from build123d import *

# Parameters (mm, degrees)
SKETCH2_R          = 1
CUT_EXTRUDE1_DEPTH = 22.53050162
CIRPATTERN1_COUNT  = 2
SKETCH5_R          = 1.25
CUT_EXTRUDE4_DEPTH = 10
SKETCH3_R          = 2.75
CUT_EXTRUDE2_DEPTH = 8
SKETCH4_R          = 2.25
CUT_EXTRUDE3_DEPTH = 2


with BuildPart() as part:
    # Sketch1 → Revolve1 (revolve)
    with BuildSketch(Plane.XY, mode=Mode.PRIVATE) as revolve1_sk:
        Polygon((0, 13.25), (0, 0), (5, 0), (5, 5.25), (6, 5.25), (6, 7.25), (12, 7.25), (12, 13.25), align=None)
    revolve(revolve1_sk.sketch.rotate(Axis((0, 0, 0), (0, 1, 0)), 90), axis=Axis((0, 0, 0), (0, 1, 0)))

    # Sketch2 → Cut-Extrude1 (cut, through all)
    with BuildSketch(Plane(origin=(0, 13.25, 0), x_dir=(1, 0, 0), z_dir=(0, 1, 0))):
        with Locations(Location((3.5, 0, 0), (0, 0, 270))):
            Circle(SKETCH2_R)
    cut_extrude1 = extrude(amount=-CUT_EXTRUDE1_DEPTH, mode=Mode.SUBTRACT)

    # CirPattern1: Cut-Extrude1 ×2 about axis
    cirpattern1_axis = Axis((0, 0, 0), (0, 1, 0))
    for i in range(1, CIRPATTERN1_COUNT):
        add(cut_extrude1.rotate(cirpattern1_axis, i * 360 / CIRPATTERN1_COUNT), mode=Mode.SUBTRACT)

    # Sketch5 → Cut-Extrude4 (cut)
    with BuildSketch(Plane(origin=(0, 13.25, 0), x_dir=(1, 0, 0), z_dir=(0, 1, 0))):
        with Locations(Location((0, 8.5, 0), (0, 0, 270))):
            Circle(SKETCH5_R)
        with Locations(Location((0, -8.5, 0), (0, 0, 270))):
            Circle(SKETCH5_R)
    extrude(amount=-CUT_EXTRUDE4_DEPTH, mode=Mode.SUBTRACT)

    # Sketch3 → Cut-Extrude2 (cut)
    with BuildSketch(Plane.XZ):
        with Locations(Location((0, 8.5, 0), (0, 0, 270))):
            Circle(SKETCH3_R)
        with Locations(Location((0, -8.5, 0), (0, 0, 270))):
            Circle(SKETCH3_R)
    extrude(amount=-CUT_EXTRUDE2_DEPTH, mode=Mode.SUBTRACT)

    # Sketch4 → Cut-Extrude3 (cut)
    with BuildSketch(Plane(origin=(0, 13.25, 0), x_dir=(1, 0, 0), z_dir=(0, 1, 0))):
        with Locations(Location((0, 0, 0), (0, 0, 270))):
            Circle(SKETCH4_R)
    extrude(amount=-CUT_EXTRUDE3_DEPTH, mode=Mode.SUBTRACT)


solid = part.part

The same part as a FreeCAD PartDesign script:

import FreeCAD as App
import Part
import Sketcher
Q = App.Units.Quantity

doc = App.newDocument("Part")
params = doc.addObject("Spreadsheet::Sheet", "Params")
for row, (alias, value) in enumerate([
    ("sketch1_width", "5 mm"),
    ("sketch1_width2", "1 mm"),
    ("sketch1_width3", "6 mm"),
    ("sketch1_height", "2 mm"),
    ("sketch1_height2", "13.25 mm"),
    ("revolution_angle", "360 deg"),
    ("sketch2_diameter", "2 mm"),
    ("sketch3_diameter", "2.5 mm"),
    ("pocket2_length", "10 mm"),
    ("sketch4_diameter", "5.5 mm"),
    ("pocket3_length", "8 mm"),
    ("sketch5_diameter", "4.5 mm"),
    ("pocket4_length", "2 mm"),
], start=1):
    params.set(f"A{row}", alias)
    params.set(f"B{row}", "=" + value)
    params.setAlias(f"B{row}", alias)

body = doc.addObject("PartDesign::Body", "Body")

# Sketch on XY plane
sketch1 = body.newObject("Sketcher::SketchObject", "Sketch")
sketch1.AttachmentSupport = (doc.getObject("XY_Plane"), [""])
sketch1.MapMode = "FlatFace"
sketch1.addGeometry([
    Part.LineSegment(App.Vector(0, 13.2, 0), App.Vector(0, 0, 0)),  # 0
    Part.LineSegment(App.Vector(0, 0, 0), App.Vector(5, 0, 0)),  # 1
    Part.LineSegment(App.Vector(5, 0, 0), App.Vector(5, 5.2, 0)),  # 2
    Part.LineSegment(App.Vector(5, 5.2, 0), App.Vector(6, 5.2, 0)),  # 3
    Part.LineSegment(App.Vector(6, 5.2, 0), App.Vector(6, 7.2, 0)),  # 4
    Part.LineSegment(App.Vector(6, 7.2, 0), App.Vector(12, 7.2, 0)),  # 5
    Part.LineSegment(App.Vector(12, 7.2, 0), App.Vector(12, 13.2, 0)),  # 6
    Part.LineSegment(App.Vector(12, 13.2, 0), App.Vector(0, 13.2, 0)),  # 7
], False)
sketch1.addConstraint([
    Sketcher.Constraint("Coincident", 0, 2, 1, 1),
    Sketcher.Constraint("Coincident", 1, 2, 2, 1),
    Sketcher.Constraint("Coincident", 2, 2, 3, 1),
    Sketcher.Constraint("Coincident", 3, 2, 4, 1),
    Sketcher.Constraint("Coincident", 4, 2, 5, 1),
    Sketcher.Constraint("Coincident", 5, 2, 6, 1),
    Sketcher.Constraint("Coincident", 6, 2, 7, 1),
    Sketcher.Constraint("Coincident", 7, 2, 0, 1),
    Sketcher.Constraint("Vertical", 0),
    Sketcher.Constraint("Horizontal", 1),
    Sketcher.Constraint("Vertical", 2),
    Sketcher.Constraint("Horizontal", 3),
    Sketcher.Constraint("Vertical", 4),
    Sketcher.Constraint("Horizontal", 5),
    Sketcher.Constraint("Vertical", 6),
    Sketcher.Constraint("Horizontal", 7),
    Sketcher.Constraint("Coincident", 0, 2, -1, 1),
    Sketcher.Constraint("Equal", 5, 6),
    Sketcher.Constraint("DistanceX", 1, 1, 1, 2, Q("5 mm")),
    Sketcher.Constraint("DistanceX", 3, 1, 3, 2, Q("1 mm")),
    Sketcher.Constraint("DistanceX", 5, 1, 5, 2, Q("6 mm")),
    Sketcher.Constraint("DistanceY", 4, 1, 4, 2, Q("2 mm")),
    Sketcher.Constraint("DistanceY", 0, 2, 0, 1, Q("13.25 mm")),
])
sketch1.setExpression("Constraints[18]", "Params.sketch1_width")
sketch1.setExpression("Constraints[19]", "Params.sketch1_width2")
sketch1.setExpression("Constraints[20]", "Params.sketch1_width3")
sketch1.setExpression("Constraints[21]", "Params.sketch1_height")
sketch1.setExpression("Constraints[22]", "Params.sketch1_height2")
revolution = body.newObject("PartDesign::Revolution", "Revolution")
revolution.Profile = sketch1
revolution.ReferenceAxis = (sketch1, ["V_Axis"])
revolution.setExpression("Angle", "Params.revolution_angle")

# Sketch on XZ plane
sketch2 = body.newObject("Sketcher::SketchObject", "Sketch001")
sketch2.AttachmentSupport = (doc.getObject("XZ_Plane"), [""])
sketch2.MapMode = "FlatFace"
sketch2.AttachmentOffset = App.Placement(App.Vector(0, 0, -13.25), App.Rotation())
sketch2.addGeometry(Part.Circle(App.Vector(3.5, 0, 0), App.Vector(0, 0, 1), 1), False)
sketch2.addConstraint([
    Sketcher.Constraint("PointOnObject", 0, 3, -1),
    Sketcher.Constraint("Diameter", 0, Q("2 mm")),
    Sketcher.Constraint("DistanceX", -1, 1, 0, 3, Q("3.5 mm")),
])
sketch2.setExpression("Constraints[1]", "Params.sketch2_diameter")
pocket1 = body.newObject("PartDesign::Pocket", "Pocket")
pocket1.Profile = sketch2
pocket1.Type = "ThroughAll"
pocket1.Reversed = True
doc.recompute()

polarpattern = body.newObject("PartDesign::PolarPattern", "PolarPattern")
polarpattern.Originals = [pocket1]
polarpattern.Axis = (doc.getObject("Y_Axis"), [""])
polarpattern.Angle = 360
polarpattern.Occurrences = 2
body.Tip = polarpattern

# Sketch on XZ plane
sketch3 = body.newObject("Sketcher::SketchObject", "Sketch002")
sketch3.AttachmentSupport = (doc.getObject("XZ_Plane"), [""])
sketch3.MapMode = "FlatFace"
sketch3.AttachmentOffset = App.Placement(App.Vector(0, 0, -13.25), App.Rotation())
sketch3.addGeometry([
    Part.Circle(App.Vector(0, -8.5, 0), App.Vector(0, 0, 1), 1.2),
    Part.Circle(App.Vector(0, 8.5, 0), App.Vector(0, 0, 1), 1.2),
], False)
sketch3.addConstraint([
    Sketcher.Constraint("Equal", 0, 1),
    Sketcher.Constraint("Symmetric", 0, 3, 1, 3, -1, 1),
    Sketcher.Constraint("PointOnObject", 0, 3, -2),
    Sketcher.Constraint("Diameter", 0, Q("2.5 mm")),
    Sketcher.Constraint("DistanceY", 0, 3, 1, 3, Q("17 mm")),
])
sketch3.setExpression("Constraints[3]", "Params.sketch3_diameter")
pocket2 = body.newObject("PartDesign::Pocket", "Pocket001")
pocket2.Profile = sketch3
pocket2.setExpression("Length", "Params.pocket2_length")
pocket2.Reversed = True

# Sketch on XZ plane
sketch4 = body.newObject("Sketcher::SketchObject", "Sketch003")
sketch4.AttachmentSupport = (doc.getObject("XZ_Plane"), [""])
sketch4.MapMode = "FlatFace"
sketch4.addGeometry([
    Part.Circle(App.Vector(0, 8.5, 0), App.Vector(0, 0, 1), 2.8),
    Part.Circle(App.Vector(0, -8.5, 0), App.Vector(0, 0, 1), 2.8),
], False)
sketch4.addConstraint([
    Sketcher.Constraint("Equal", 0, 1),
    Sketcher.Constraint("Symmetric", 0, 3, 1, 3, -1, 1),
    Sketcher.Constraint("PointOnObject", 0, 3, -2),
    Sketcher.Constraint("Diameter", 0, Q("5.5 mm")),
    Sketcher.Constraint("DistanceY", 1, 3, 0, 3, Q("17 mm")),
])
sketch4.setExpression("Constraints[3]", "Params.sketch4_diameter")
pocket3 = body.newObject("PartDesign::Pocket", "Pocket002")
pocket3.Profile = sketch4
pocket3.setExpression("Length", "Params.pocket3_length")

# Sketch on XZ plane
sketch5 = body.newObject("Sketcher::SketchObject", "Sketch004")
sketch5.AttachmentSupport = (doc.getObject("XZ_Plane"), [""])
sketch5.MapMode = "FlatFace"
sketch5.AttachmentOffset = App.Placement(App.Vector(0, 0, -13.25), App.Rotation())
sketch5.addGeometry(Part.Circle(App.Vector(0, 0, 0), App.Vector(0, 0, 1), 2.2), False)
sketch5.addConstraint([
    Sketcher.Constraint("Coincident", 0, 3, -1, 1),
    Sketcher.Constraint("Diameter", 0, Q("4.5 mm")),
])
sketch5.setExpression("Constraints[1]", "Params.sketch5_diameter")
pocket4 = body.newObject("PartDesign::Pocket", "Pocket003")
pocket4.Profile = sketch5
pocket4.setExpression("Length", "Params.pocket4_length")
pocket4.Reversed = True

doc.recompute()
